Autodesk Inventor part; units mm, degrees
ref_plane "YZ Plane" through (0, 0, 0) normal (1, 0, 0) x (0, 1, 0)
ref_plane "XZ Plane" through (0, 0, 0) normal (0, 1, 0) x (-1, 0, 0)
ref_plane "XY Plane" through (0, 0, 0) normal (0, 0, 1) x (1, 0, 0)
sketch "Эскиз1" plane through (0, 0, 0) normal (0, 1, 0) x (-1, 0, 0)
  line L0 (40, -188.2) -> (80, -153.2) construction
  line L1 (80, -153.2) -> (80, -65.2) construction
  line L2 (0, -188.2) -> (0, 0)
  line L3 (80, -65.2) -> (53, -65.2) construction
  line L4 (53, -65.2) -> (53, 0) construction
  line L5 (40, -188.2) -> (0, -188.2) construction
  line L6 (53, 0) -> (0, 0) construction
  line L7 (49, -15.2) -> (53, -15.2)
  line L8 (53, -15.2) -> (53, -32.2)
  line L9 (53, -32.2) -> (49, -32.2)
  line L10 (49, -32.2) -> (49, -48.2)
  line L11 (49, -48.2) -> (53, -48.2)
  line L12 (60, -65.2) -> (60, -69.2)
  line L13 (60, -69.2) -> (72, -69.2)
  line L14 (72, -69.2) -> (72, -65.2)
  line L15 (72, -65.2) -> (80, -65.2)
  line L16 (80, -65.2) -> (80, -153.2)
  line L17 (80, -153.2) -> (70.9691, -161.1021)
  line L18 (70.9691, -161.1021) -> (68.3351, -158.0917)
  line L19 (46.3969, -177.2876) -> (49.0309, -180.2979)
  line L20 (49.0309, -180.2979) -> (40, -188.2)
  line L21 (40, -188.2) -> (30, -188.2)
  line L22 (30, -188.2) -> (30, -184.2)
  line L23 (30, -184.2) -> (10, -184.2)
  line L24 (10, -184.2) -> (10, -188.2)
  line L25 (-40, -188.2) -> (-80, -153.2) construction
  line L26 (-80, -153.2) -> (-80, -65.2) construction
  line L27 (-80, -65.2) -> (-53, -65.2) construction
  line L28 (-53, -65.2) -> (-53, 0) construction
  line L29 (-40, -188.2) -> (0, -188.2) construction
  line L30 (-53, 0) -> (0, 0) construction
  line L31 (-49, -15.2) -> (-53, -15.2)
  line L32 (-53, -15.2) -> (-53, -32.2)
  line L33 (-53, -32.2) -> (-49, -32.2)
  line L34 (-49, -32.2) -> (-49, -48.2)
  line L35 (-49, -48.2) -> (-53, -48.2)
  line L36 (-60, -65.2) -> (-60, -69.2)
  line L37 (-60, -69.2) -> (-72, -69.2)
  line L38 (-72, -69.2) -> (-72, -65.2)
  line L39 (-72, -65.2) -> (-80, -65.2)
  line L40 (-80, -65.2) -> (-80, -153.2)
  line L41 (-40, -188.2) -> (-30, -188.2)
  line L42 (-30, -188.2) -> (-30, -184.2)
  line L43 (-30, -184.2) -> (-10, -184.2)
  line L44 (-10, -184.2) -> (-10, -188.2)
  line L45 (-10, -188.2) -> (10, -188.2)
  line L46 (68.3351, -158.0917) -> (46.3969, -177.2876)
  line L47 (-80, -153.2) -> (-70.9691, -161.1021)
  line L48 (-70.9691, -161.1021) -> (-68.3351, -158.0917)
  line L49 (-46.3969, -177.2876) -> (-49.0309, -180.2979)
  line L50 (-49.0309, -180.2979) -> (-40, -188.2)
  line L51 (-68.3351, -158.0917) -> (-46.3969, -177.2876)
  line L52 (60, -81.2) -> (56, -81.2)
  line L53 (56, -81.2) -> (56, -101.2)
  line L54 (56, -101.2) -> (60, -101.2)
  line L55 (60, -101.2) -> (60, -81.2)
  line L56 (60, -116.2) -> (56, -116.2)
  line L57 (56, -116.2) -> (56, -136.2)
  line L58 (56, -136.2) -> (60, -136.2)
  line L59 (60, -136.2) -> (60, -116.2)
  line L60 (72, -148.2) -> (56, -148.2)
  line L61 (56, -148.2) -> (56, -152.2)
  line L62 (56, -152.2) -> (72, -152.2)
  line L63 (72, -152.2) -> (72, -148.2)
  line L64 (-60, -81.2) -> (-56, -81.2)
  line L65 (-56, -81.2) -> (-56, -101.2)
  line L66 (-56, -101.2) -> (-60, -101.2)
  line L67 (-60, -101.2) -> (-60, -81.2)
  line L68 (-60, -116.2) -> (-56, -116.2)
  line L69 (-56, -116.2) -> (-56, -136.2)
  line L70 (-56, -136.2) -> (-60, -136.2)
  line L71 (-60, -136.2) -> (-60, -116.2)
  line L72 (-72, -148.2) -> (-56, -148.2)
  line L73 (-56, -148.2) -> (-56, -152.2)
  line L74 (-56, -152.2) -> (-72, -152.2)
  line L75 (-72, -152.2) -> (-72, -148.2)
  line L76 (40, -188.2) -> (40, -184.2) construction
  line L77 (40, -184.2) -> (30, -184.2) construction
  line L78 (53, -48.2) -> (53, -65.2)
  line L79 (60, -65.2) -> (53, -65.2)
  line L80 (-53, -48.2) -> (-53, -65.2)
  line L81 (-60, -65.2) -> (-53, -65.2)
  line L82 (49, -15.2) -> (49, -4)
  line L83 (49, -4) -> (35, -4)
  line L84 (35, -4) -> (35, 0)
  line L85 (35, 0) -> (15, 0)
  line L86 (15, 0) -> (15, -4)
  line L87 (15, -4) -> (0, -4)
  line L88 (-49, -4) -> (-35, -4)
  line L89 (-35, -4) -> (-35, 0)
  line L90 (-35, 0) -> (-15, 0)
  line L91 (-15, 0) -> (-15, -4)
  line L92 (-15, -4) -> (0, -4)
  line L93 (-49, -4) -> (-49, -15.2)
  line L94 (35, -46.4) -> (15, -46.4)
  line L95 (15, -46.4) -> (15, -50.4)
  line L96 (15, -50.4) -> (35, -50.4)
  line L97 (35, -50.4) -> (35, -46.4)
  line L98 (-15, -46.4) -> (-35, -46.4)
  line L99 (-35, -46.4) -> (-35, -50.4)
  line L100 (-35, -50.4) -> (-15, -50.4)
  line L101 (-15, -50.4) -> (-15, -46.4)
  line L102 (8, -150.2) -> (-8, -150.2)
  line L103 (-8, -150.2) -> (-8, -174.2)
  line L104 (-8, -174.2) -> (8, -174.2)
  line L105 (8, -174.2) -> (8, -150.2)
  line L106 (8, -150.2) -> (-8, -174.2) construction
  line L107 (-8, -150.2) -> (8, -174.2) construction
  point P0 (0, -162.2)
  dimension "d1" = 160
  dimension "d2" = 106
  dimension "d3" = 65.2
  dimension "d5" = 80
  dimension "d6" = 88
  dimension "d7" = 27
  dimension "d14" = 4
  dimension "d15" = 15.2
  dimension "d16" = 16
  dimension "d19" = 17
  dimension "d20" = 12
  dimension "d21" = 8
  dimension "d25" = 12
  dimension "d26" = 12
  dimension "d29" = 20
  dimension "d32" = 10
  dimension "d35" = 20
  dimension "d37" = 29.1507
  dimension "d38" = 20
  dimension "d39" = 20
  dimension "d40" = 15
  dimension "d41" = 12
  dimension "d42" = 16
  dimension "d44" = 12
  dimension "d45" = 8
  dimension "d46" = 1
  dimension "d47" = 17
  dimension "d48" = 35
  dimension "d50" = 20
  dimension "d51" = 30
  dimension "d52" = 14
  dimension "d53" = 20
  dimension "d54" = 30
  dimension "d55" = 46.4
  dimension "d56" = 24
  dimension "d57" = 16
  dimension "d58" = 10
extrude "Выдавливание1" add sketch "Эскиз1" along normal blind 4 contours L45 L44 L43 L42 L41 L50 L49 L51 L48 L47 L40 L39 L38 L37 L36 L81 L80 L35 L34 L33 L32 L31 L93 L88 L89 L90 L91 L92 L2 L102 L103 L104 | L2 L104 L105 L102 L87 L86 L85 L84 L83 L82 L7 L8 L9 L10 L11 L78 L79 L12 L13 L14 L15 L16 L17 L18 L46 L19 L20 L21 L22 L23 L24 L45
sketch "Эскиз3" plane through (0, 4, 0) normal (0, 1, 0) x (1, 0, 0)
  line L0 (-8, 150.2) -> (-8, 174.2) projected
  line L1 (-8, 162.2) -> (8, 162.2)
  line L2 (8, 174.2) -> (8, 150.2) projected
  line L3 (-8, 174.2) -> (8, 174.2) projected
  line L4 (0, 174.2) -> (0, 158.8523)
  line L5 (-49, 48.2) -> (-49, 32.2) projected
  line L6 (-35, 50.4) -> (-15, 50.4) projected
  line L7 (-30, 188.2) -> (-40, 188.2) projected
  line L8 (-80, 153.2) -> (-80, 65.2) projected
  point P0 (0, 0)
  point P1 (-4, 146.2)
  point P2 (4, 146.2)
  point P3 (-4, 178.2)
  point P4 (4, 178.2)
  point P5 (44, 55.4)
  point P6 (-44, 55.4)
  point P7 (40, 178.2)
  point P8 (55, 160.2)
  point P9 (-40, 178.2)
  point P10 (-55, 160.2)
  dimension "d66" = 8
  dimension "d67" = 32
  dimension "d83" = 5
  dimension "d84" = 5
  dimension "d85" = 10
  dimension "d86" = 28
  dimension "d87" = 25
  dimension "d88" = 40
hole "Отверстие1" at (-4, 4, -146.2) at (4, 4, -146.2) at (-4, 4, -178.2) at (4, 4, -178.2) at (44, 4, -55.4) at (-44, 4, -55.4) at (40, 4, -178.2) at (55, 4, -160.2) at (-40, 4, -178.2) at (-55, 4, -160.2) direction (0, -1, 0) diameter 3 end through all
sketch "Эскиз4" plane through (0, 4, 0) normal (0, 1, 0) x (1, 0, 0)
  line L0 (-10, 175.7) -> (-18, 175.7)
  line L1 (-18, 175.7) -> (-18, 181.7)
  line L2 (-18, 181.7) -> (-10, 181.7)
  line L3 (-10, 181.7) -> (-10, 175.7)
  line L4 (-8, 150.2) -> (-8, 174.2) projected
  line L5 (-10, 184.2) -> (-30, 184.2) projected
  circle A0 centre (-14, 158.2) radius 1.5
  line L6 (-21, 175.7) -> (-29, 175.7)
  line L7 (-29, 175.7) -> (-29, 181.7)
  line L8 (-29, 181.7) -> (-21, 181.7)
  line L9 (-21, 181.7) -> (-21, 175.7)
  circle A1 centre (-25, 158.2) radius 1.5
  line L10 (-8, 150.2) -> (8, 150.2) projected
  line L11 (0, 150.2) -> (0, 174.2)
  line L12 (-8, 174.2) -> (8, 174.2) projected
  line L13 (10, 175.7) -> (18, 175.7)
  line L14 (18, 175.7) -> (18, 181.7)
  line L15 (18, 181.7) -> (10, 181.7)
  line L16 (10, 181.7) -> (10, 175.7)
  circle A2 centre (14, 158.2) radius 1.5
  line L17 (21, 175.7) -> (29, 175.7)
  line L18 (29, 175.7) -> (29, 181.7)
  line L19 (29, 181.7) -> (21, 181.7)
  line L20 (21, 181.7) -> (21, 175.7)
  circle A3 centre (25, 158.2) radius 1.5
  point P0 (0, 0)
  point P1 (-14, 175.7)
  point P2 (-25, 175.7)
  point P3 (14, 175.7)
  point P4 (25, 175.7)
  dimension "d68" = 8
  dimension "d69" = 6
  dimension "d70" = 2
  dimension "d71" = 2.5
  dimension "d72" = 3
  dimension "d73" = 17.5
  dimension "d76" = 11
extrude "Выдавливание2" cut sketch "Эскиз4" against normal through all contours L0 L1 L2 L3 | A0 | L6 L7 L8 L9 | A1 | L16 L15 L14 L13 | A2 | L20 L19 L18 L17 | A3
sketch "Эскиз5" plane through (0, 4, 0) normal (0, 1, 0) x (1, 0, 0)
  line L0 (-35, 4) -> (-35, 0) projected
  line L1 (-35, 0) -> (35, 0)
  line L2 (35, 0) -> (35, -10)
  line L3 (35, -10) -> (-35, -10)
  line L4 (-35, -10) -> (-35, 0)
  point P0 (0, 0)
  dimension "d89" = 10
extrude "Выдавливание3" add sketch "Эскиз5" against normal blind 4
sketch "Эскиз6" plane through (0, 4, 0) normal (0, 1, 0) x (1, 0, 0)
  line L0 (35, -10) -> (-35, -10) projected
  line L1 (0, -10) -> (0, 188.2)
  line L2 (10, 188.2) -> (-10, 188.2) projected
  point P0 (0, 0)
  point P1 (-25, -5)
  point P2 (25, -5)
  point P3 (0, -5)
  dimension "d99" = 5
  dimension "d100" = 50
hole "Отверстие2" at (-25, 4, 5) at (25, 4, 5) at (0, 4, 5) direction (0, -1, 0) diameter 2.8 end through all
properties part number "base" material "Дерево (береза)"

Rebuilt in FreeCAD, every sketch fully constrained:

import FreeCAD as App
import Part
import Sketcher

V = App.Vector

doc = App.newDocument("Part")
body = doc.addObject("PartDesign::Body", "Body")

# Sketch on XZ plane
sketch1 = body.newObject("Sketcher::SketchObject", "Sketch")
sketch1.AttachmentSupport = (doc.getObject("XZ_Plane"), [""])
sketch1.MapMode = "FlatFace"
sketch1.addGeometry([
    Part.LineSegment(V(10, -188.2, 0), V(-10, -188.2, 0)),  # 0
    Part.LineSegment(V(-10, -188.2, 0), V(-10, -184.2, 0)),  # 1
    Part.LineSegment(V(-10, -184.2, 0), V(-30, -184.2, 0)),  # 2
    Part.LineSegment(V(-30, -184.2, 0), V(-30, -188.2, 0)),  # 3
    Part.LineSegment(V(-30, -188.2, 0), V(-40, -188.2, 0)),  # 4
    Part.LineSegment(V(-40, -188.2, 0), V(-49, -180.3, 0)),  # 5
    Part.LineSegment(V(-49, -180.3, 0), V(-46.4, -177.3, 0)),  # 6
    Part.LineSegment(V(-46.4, -177.3, 0), V(-68.3, -158.1, 0)),  # 7
    Part.LineSegment(V(-68.3, -158.1, 0), V(-71, -161.1, 0)),  # 8
    Part.LineSegment(V(-71, -161.1, 0), V(-80, -153.2, 0)),  # 9
    Part.LineSegment(V(-80, -153.2, 0), V(-80, -65.2, 0)),  # 10
    Part.LineSegment(V(-80, -65.2, 0), V(-72, -65.2, 0)),  # 11
    Part.LineSegment(V(-72, -65.2, 0), V(-72, -69.2, 0)),  # 12
    Part.LineSegment(V(-72, -69.2, 0), V(-60, -69.2, 0)),  # 13
    Part.LineSegment(V(-60, -69.2, 0), V(-60, -65.2, 0)),  # 14
    Part.LineSegment(V(-60, -65.2, 0), V(-53, -65.2, 0)),  # 15
    Part.LineSegment(V(-53, -65.2, 0), V(-53, -48.2, 0)),  # 16
    Part.LineSegment(V(-53, -48.2, 0), V(-49, -48.2, 0)),  # 17
    Part.LineSegment(V(-49, -48.2, 0), V(-49, -32.2, 0)),  # 18
    Part.LineSegment(V(-49, -32.2, 0), V(-53, -32.2, 0)),  # 19
    Part.LineSegment(V(-53, -32.2, 0), V(-53, -15.2, 0)),  # 20
    Part.LineSegment(V(-53, -15.2, 0), V(-49, -15.2, 0)),  # 21
    Part.LineSegment(V(-49, -15.2, 0), V(-49, -4, 0)),  # 22
    Part.LineSegment(V(-49, -4, 0), V(-35, -4, 0)),  # 23
    Part.LineSegment(V(-35, -4, 0), V(-35, 0, 0)),  # 24
    Part.LineSegment(V(-35, 0, 0), V(-15, 0, 0)),  # 25
    Part.LineSegment(V(-15, 0, 0), V(-15, -4, 0)),  # 26
    Part.LineSegment(V(-15, -4, 0), V(15, -4, 0)),  # 27
    Part.LineSegment(V(15, -4, 0), V(15, 0, 0)),  # 28
    Part.LineSegment(V(15, 0, 0), V(35, 0, 0)),  # 29
    Part.LineSegment(V(35, 0, 0), V(35, -4, 0)),  # 30
    Part.LineSegment(V(35, -4, 0), V(49, -4, 0)),  # 31
    Part.LineSegment(V(49, -4, 0), V(49, -15.2, 0)),  # 32
    Part.LineSegment(V(49, -15.2, 0), V(53, -15.2, 0)),  # 33
    Part.LineSegment(V(53, -15.2, 0), V(53, -32.2, 0)),  # 34
    Part.LineSegment(V(53, -32.2, 0), V(49, -32.2, 0)),  # 35
    Part.LineSegment(V(49, -32.2, 0), V(49, -48.2, 0)),  # 36
    Part.LineSegment(V(49, -48.2, 0), V(53, -48.2, 0)),  # 37
    Part.LineSegment(V(53, -48.2, 0), V(53, -65.2, 0)),  # 38
    Part.LineSegment(V(53, -65.2, 0), V(60, -65.2, 0)),  # 39
    Part.LineSegment(V(60, -65.2, 0), V(60, -69.2, 0)),  # 40
    Part.LineSegment(V(60, -69.2, 0), V(72, -69.2, 0)),  # 41
    Part.LineSegment(V(72, -69.2, 0), V(72, -65.2, 0)),  # 42
    Part.LineSegment(V(72, -65.2, 0), V(80, -65.2, 0)),  # 43
    Part.LineSegment(V(80, -65.2, 0), V(80, -153.2, 0)),  # 44
    Part.LineSegment(V(80, -153.2, 0), V(71, -161.1, 0)),  # 45
    Part.LineSegment(V(71, -161.1, 0), V(68.3, -158.1, 0)),  # 46
    Part.LineSegment(V(68.3, -158.1, 0), V(46.4, -177.3, 0)),  # 47
    Part.LineSegment(V(46.4, -177.3, 0), V(49, -180.3, 0)),  # 48
    Part.LineSegment(V(49, -180.3, 0), V(40, -188.2, 0)),  # 49
    Part.LineSegment(V(40, -188.2, 0), V(30, -188.2, 0)),  # 50
    Part.LineSegment(V(30, -188.2, 0), V(30, -184.2, 0)),  # 51
    Part.LineSegment(V(30, -184.2, 0), V(10, -184.2, 0)),  # 52
    Part.LineSegment(V(10, -184.2, 0), V(10, -188.2, 0)),  # 53
    Part.LineSegment(V(8, -150.2, 0), V(-8, -150.2, 0)),  # 54
    Part.LineSegment(V(-8, -150.2, 0), V(-8, -174.2, 0)),  # 55
    Part.LineSegment(V(-8, -174.2, 0), V(8, -174.2, 0)),  # 56
    Part.LineSegment(V(8, -174.2, 0), V(8, -150.2, 0)),  # 57
    Part.LineSegment(V(72, -152.2, 0), V(72, -148.2, 0)),  # 58
    Part.LineSegment(V(72, -148.2, 0), V(56, -148.2, 0)),  # 59
    Part.LineSegment(V(56, -148.2, 0), V(56, -152.2, 0)),  # 60
    Part.LineSegment(V(56, -152.2, 0), V(72, -152.2, 0)),  # 61
    Part.LineSegment(V(60, -136.2, 0), V(60, -116.2, 0)),  # 62
    Part.LineSegment(V(60, -116.2, 0), V(56, -116.2, 0)),  # 63
    Part.LineSegment(V(56, -116.2, 0), V(56, -136.2, 0)),  # 64
    Part.LineSegment(V(56, -136.2, 0), V(60, -136.2, 0)),  # 65
    Part.LineSegment(V(60, -101.2, 0), V(60, -81.2, 0)),  # 66
    Part.LineSegment(V(60, -81.2, 0), V(56, -81.2, 0)),  # 67
    Part.LineSegment(V(56, -81.2, 0), V(56, -101.2, 0)),  # 68
    Part.LineSegment(V(56, -101.2, 0), V(60, -101.2, 0)),  # 69
    Part.LineSegment(V(35, -46.4, 0), V(15, -46.4, 0)),  # 70
    Part.LineSegment(V(15, -46.4, 0), V(15, -50.4, 0)),  # 71
    Part.LineSegment(V(15, -50.4, 0), V(35, -50.4, 0)),  # 72
    Part.LineSegment(V(35, -50.4, 0), V(35, -46.4, 0)),  # 73
    Part.LineSegment(V(-60, -101.2, 0), V(-56, -101.2, 0)),  # 74
    Part.LineSegment(V(-56, -101.2, 0), V(-56, -81.2, 0)),  # 75
    Part.LineSegment(V(-56, -81.2, 0), V(-60, -81.2, 0)),  # 76
    Part.LineSegment(V(-60, -81.2, 0), V(-60, -101.2, 0)),  # 77
    Part.LineSegment(V(-56, -148.2, 0), V(-72, -148.2, 0)),  # 78
    Part.LineSegment(V(-72, -148.2, 0), V(-72, -152.2, 0)),  # 79
    Part.LineSegment(V(-72, -152.2, 0), V(-56, -152.2, 0)),  # 80
    Part.LineSegment(V(-56, -152.2, 0), V(-56, -148.2, 0)),  # 81
    Part.LineSegment(V(-56, -116.2, 0), V(-60, -116.2, 0)),  # 82
    Part.LineSegment(V(-60, -116.2, 0), V(-60, -136.2, 0)),  # 83
    Part.LineSegment(V(-60, -136.2, 0), V(-56, -136.2, 0)),  # 84
    Part.LineSegment(V(-56, -136.2, 0), V(-56, -116.2, 0)),  # 85
    Part.LineSegment(V(-15, -46.4, 0), V(-35, -46.4, 0)),  # 86
    Part.LineSegment(V(-35, -46.4, 0), V(-35, -50.4, 0)),  # 87
    Part.LineSegment(V(-35, -50.4, 0), V(-15, -50.4, 0)),  # 88
    Part.LineSegment(V(-15, -50.4, 0), V(-15, -46.4, 0)),  # 89
], False)
sketch1.addConstraint([
    Sketcher.Constraint("Coincident", 0, 2, 1, 1),
    Sketcher.Constraint("Coincident", 1, 2, 2, 1),
    Sketcher.Constraint("Coincident", 2, 2, 3, 1),
    Sketcher.Constraint("Coincident", 3, 2, 4, 1),
    Sketcher.Constraint("Coincident", 4, 2, 5, 1),
    Sketcher.Constraint("Coincident", 5, 2, 6, 1),
    Sketcher.Constraint("Coincident", 6, 2, 7, 1),
    Sketcher.Constraint("Coincident", 7, 2, 8, 1),
    Sketcher.Constraint("Coincident", 8, 2, 9, 1),
    Sketcher.Constraint("Coincident", 9, 2, 10, 1),
    Sketcher.Constraint("Coincident", 10, 2, 11, 1),
    Sketcher.Constraint("Coincident", 11, 2, 12, 1),
    Sketcher.Constraint("Coincident", 12, 2, 13, 1),
    Sketcher.Constraint("Coincident", 13, 2, 14, 1),
    Sketcher.Constraint("Coincident", 14, 2, 15, 1),
    Sketcher.Constraint("Coincident", 15, 2, 16, 1),
    Sketcher.Constraint("Coincident", 16, 2, 17, 1),
    Sketcher.Constraint("Coincident", 17, 2, 18, 1),
    Sketcher.Constraint("Coincident", 18, 2, 19, 1),
    Sketcher.Constraint("Coincident", 19, 2, 20, 1),
    Sketcher.Constraint("Coincident", 20, 2, 21, 1),
    Sketcher.Constraint("Coincident", 21, 2, 22, 1),
    Sketcher.Constraint("Coincident", 22, 2, 23, 1),
    Sketcher.Constraint("Coincident", 23, 2, 24, 1),
    Sketcher.Constraint("Coincident", 24, 2, 25, 1),
    Sketcher.Constraint("Coincident", 25, 2, 26, 1),
    Sketcher.Constraint("Coincident", 26, 2, 27, 1),
    Sketcher.Constraint("Coincident", 27, 2, 28, 1),
    Sketcher.Constraint("Coincident", 28, 2, 29, 1),
    Sketcher.Constraint("Coincident", 29, 2, 30, 1),
    Sketcher.Constraint("Coincident", 30, 2, 31, 1),
    Sketcher.Constraint("Coincident", 31, 2, 32, 1),
    Sketcher.Constraint("Coincident", 32, 2, 33, 1),
    Sketcher.Constraint("Coincident", 33, 2, 34, 1),
    Sketcher.Constraint("Coincident", 34, 2, 35, 1),
    Sketcher.Constraint("Coincident", 35, 2, 36, 1),
    Sketcher.Constraint("Coincident", 36, 2, 37, 1),
    Sketcher.Constraint("Coincident", 37, 2, 38, 1),
    Sketcher.Constraint("Coincident", 38, 2, 39, 1),
    Sketcher.Constraint("Coincident", 39, 2, 40, 1),
    Sketcher.Constraint("Coincident", 40, 2, 41, 1),
    Sketcher.Constraint("Coincident", 41, 2, 42, 1),
    Sketcher.Constraint("Coincident", 42, 2, 43, 1),
    Sketcher.Constraint("Coincident", 43, 2, 44, 1),
    Sketcher.Constraint("Coincident", 44, 2, 45, 1),
    Sketcher.Constraint("Coincident", 45, 2, 46, 1),
    Sketcher.Constraint("Coincident", 46, 2, 47, 1),
    Sketcher.Constraint("Coincident", 47, 2, 48, 1),
    Sketcher.Constraint("Coincident", 48, 2, 49, 1),
    Sketcher.Constraint("Coincident", 49, 2, 50, 1),
    Sketcher.Constraint("Coincident", 50, 2, 51, 1),
    Sketcher.Constraint("Coincident", 51, 2, 52, 1),
    Sketcher.Constraint("Coincident", 52, 2, 53, 1),
    Sketcher.Constraint("Coincident", 53, 2, 0, 1),
    Sketcher.Constraint("Coincident", 54, 2, 55, 1),
    Sketcher.Constraint("Coincident", 55, 2, 56, 1),
    Sketcher.Constraint("Coincident", 56, 2, 57, 1),
    Sketcher.Constraint("Coincident", 57, 2, 54, 1),
    Sketcher.Constraint("Coincident", 58, 2, 59, 1),
    Sketcher.Constraint("Coincident", 59, 2, 60, 1),
    Sketcher.Constraint("Coincident", 60, 2, 61, 1),
    Sketcher.Constraint("Coincident", 61, 2, 58, 1),
    Sketcher.Constraint("Coincident", 62, 2, 63, 1),
    Sketcher.Constraint("Coincident", 63, 2, 64, 1),
    Sketcher.Constraint("Coincident", 64, 2, 65, 1),
    Sketcher.Constraint("Coincident", 65, 2, 62, 1),
    Sketcher.Constraint("Coincident", 66, 2, 67, 1),
    Sketcher.Constraint("Coincident", 67, 2, 68, 1),
    Sketcher.Constraint("Coincident", 68, 2, 69, 1),
    Sketcher.Constraint("Coincident", 69, 2, 66, 1),
    Sketcher.Constraint("Coincident", 70, 2, 71, 1),
    Sketcher.Constraint("Coincident", 71, 2, 72, 1),
    Sketcher.Constraint("Coincident", 72, 2, 73, 1),
    Sketcher.Constraint("Coincident", 73, 2, 70, 1),
    Sketcher.Constraint("Coincident", 74, 2, 75, 1),
    Sketcher.Constraint("Coincident", 75, 2, 76, 1),
    Sketcher.Constraint("Coincident", 76, 2, 77, 1),
    Sketcher.Constraint("Coincident", 77, 2, 74, 1),
    Sketcher.Constraint("Coincident", 78, 2, 79, 1),
    Sketcher.Constraint("Coincident", 79, 2, 80, 1),
    Sketcher.Constraint("Coincident", 80, 2, 81, 1),
    Sketcher.Constraint("Coincident", 81, 2, 78, 1),
    Sketcher.Constraint("Coincident", 82, 2, 83, 1),
    Sketcher.Constraint("Coincident", 83, 2, 84, 1),
    Sketcher.Constraint("Coincident", 84, 2, 85, 1),
    Sketcher.Constraint("Coincident", 85, 2, 82, 1),
    Sketcher.Constraint("Coincident", 86, 2, 87, 1),
    Sketcher.Constraint("Coincident", 87, 2, 88, 1),
    Sketcher.Constraint("Coincident", 88, 2, 89, 1),
    Sketcher.Constraint("Coincident", 89, 2, 86, 1),
    Sketcher.Constraint("Horizontal", 0),
    Sketcher.Constraint("Vertical", 1),
    Sketcher.Constraint("Horizontal", 2),
    Sketcher.Constraint("Vertical", 3),
    Sketcher.Constraint("Horizontal", 4),
    Sketcher.Constraint("Vertical", 10),
    Sketcher.Constraint("Horizontal", 11),
    Sketcher.Constraint("Vertical", 12),
    Sketcher.Constraint("Horizontal", 13),
    Sketcher.Constraint("Vertical", 14),
    Sketcher.Constraint("Horizontal", 15),
    Sketcher.Constraint("Vertical", 16),
    Sketcher.Constraint("Horizontal", 17),
    Sketcher.Constraint("Vertical", 18),
    Sketcher.Constraint("Horizontal", 19),
    Sketcher.Constraint("Vertical", 20),
    Sketcher.Constraint("Horizontal", 21),
    Sketcher.Constraint("Vertical", 22),
    Sketcher.Constraint("Horizontal", 23),
    Sketcher.Constraint("Vertical", 24),
    Sketcher.Constraint("Horizontal", 25),
    Sketcher.Constraint("Vertical", 26),
    Sketcher.Constraint("Horizontal", 27),
    Sketcher.Constraint("Vertical", 28),
    Sketcher.Constraint("Horizontal", 29),
    Sketcher.Constraint("Vertical", 30),
    Sketcher.Constraint("Horizontal", 31),
    Sketcher.Constraint("Vertical", 32),
    Sketcher.Constraint("Horizontal", 33),
    Sketcher.Constraint("Vertical", 34),
    Sketcher.Constraint("Horizontal", 35),
    Sketcher.Constraint("Vertical", 36),
    Sketcher.Constraint("Horizontal", 37),
    Sketcher.Constraint("Vertical", 38),
    Sketcher.Constraint("Horizontal", 39),
    Sketcher.Constraint("Vertical", 40),
    Sketcher.Constraint("Horizontal", 41),
    Sketcher.Constraint("Vertical", 42),
    Sketcher.Constraint("Horizontal", 43),
    Sketcher.Constraint("Vertical", 44),
    Sketcher.Constraint("Horizontal", 50),
    Sketcher.Constraint("Vertical", 51),
    Sketcher.Constraint("Horizontal", 52),
    Sketcher.Constraint("Vertical", 53),
    Sketcher.Constraint("Horizontal", 54),
    Sketcher.Constraint("Vertical", 55),
    Sketcher.Constraint("Horizontal", 56),
    Sketcher.Constraint("Vertical", 57),
    Sketcher.Constraint("Vertical", 58),
    Sketcher.Constraint("Horizontal", 59),
    Sketcher.Constraint("Vertical", 60),
    Sketcher.Constraint("Horizontal", 61),
    Sketcher.Constraint("Vertical", 62),
    Sketcher.Constraint("Horizontal", 63),
    Sketcher.Constraint("Vertical", 64),
    Sketcher.Constraint("Horizontal", 65),
    Sketcher.Constraint("Vertical", 66),
    Sketcher.Constraint("Horizontal", 67),
    Sketcher.Constraint("Vertical", 68),
    Sketcher.Constraint("Horizontal", 69),
    Sketcher.Constraint("Horizontal", 70),
    Sketcher.Constraint("Vertical", 71),
    Sketcher.Constraint("Horizontal", 72),
    Sketcher.Constraint("Vertical", 73),
    Sketcher.Constraint("Horizontal", 74),
    Sketcher.Constraint("Vertical", 75),
    Sketcher.Constraint("Horizontal", 76),
    Sketcher.Constraint("Vertical", 77),
    Sketcher.Constraint("Horizontal", 78),
    Sketcher.Constraint("Vertical", 79),
    Sketcher.Constraint("Horizontal", 80),
    Sketcher.Constraint("Vertical", 81),
    Sketcher.Constraint("Horizontal", 82),
    Sketcher.Constraint("Vertical", 83),
    Sketcher.Constraint("Horizontal", 84),
    Sketcher.Constraint("Vertical", 85),
    Sketcher.Constraint("Horizontal", 86),
    Sketcher.Constraint("Vertical", 87),
    Sketcher.Constraint("Horizontal", 88),
    Sketcher.Constraint("Vertical", 89),
    Sketcher.Constraint("Symmetric", 25, 2, 28, 2, -1, 1),
    Sketcher.Constraint("Symmetric", 24, 2, 29, 2, -2),
    Sketcher.Constraint("Symmetric", 22, 2, 31, 2, -2),
    Sketcher.Constraint("Symmetric", 20, 2, 33, 2, -2),
    Sketcher.Constraint("Symmetric", 18, 2, 35, 2, -2),
    Sketcher.Constraint("Symmetric", 16, 2, 37, 2, -2),
    Sketcher.Constraint("Symmetric", 14, 2, 39, 2, -2),
    Sketcher.Constraint("Symmetric", 12, 2, 41, 2, -2),
    Sketcher.Constraint("Symmetric", 10, 2, 43, 2, -2),
    Sketcher.Constraint("Symmetric", 8, 2, 45, 2, -2),
    Sketcher.Constraint("Symmetric", 7, 2, 46, 2, -2),
    Sketcher.Constraint("Symmetric", 6, 2, 47, 2, -2),
    Sketcher.Constraint("Symmetric", 5, 2, 48, 2, -2),
    Sketcher.Constraint("Symmetric", 4, 2, 49, 2, -2),
    Sketcher.Constraint("Symmetric", 2, 2, 51, 2, -2),
    Sketcher.Constraint("Symmetric", 68, 2, 74, 2, -2),
    Sketcher.Constraint("Symmetric", 66, 2, 76, 2, -2),
    Sketcher.Constraint("Symmetric", 58, 2, 78, 2, -2),
    Sketcher.Constraint("Symmetric", 60, 2, 80, 2, -2),
    Sketcher.Constraint("Symmetric", 62, 2, 82, 2, -2),
    Sketcher.Constraint("Symmetric", 64, 2, 84, 2, -2),
    Sketcher.Constraint("Symmetric", 73, 2, 86, 2, -2),
    Sketcher.Constraint("Symmetric", 71, 2, 88, 2, -2),
    Sketcher.Constraint("Perpendicular", 5, 6),
    Sketcher.Constraint("Perpendicular", 6, 7),
    Sketcher.Constraint("Perpendicular", 7, 8),
    Sketcher.Constraint("Perpendicular", 8, 9),
    Sketcher.Constraint("Perpendicular", 45, 46),
    Sketcher.Constraint("Horizontal", 0, 2, 3, 2),
    Sketcher.Constraint("Horizontal", 11, 2, 14, 2),
    Sketcher.Constraint("Horizontal", 23, 2, 26, 2),
    Sketcher.Constraint("Vertical", 16, 2, 19, 2),
    Sketcher.Constraint("Vertical", 18, 2, 21, 2),
    Sketcher.Constraint("Vertical", 42, 2, 58, 2),
    Sketcher.Constraint("Vertical", 40, 2, 62, 2),
    Sketcher.Constraint("Vertical", 60, 2, 63, 2),
    Sketcher.Constraint("Vertical", 65, 2, 66, 2),
    Sketcher.Constraint("Vertical", 64, 2, 67, 2),
    Sketcher.Constraint("Vertical", 28, 2, 70, 2),
    Sketcher.Constraint("Vertical", 30, 2, 72, 2),
    Sketcher.Constraint("Equal", 0, 2),
    Sketcher.Constraint("Equal", 2, 25),
    Sketcher.Constraint("Equal", 29, 52),
    Sketcher.Constraint("Equal", 56, 59),
    Sketcher.Constraint("Equal", 37, 63),
    Sketcher.Constraint("Equal", 84, 1),
    Sketcher.Constraint("Equal", 3, 12),
    Sketcher.Constraint("Equal", 80, 18),
    Sketcher.Constraint("Equal", 16, 20),
    Sketcher.Constraint("Equal", 14, 24),
    Sketcher.Constraint("Equal", 53, 58),
    Sketcher.Constraint("Equal", 88, 62),
    Sketcher.Constraint("Equal", 64, 66),
    Sketcher.Constraint("Equal", 60, 71),
    Sketcher.Constraint("Equal", 6, 8),
    Sketcher.Constraint("Equal", 5, 9),
    Sketcher.Constraint("DistanceX", 0, 2, 0, 1, 20.0),
    Sketcher.Constraint("DistanceX", 4, 2, 4, 1, 10.0),
    Sketcher.Constraint("DistanceX", 11, 1, 11, 2, 8.0),
    Sketcher.Constraint("DistanceX", 13, 1, 13, 2, 12.0),
    Sketcher.Constraint("DistanceX", 17, 1, 17, 2, 4.0),
    Sketcher.Constraint("DistanceX", 23, 1, 23, 2, 14.0),
    Sketcher.Constraint("DistanceX", 27, 1, 27, 2, 30.0),
    Sketcher.Constraint("DistanceY", 10, 1, 10, 2, 88.0),
    Sketcher.Constraint("DistanceY", 16, 1, 16, 2, 17.0),
    Sketcher.Constraint("DistanceY", 55, 2, 55, 1, 24.0),
    Sketcher.Constraint("Distance", 5, 12.0),
    Sketcher.Constraint("Distance", 6, 4.0),
    Sketcher.Constraint("DistanceX", 9, 2, -1, 1, 80.0),
    Sketcher.Constraint("DistanceX", 54, 2, -1, 1, 8.0),
    Sketcher.Constraint("DistanceY", 10, 2, -1, 1, 65.2),
    Sketcher.Constraint("DistanceY", 70, 2, -1, 1, 46.4),
    Sketcher.Constraint("Distance", 7, 29.1508),
    Sketcher.Constraint("DistanceY", 54, 2, -1, 1, 150.2),
    Sketcher.Constraint("DistanceY", 58, 2, -1, 1, 148.2),
    Sketcher.Constraint("DistanceY", 62, 2, -1, 1, 116.2),
    Sketcher.Constraint("DistanceY", 66, 2, -1, 1, 81.2),
])
pad1 = body.newObject("PartDesign::Pad", "Pad")
pad1.Profile = sketch1
pad1.Length = 4
pad1.Reversed = True

# Sketch on XZ plane
sketch2 = body.newObject("Sketcher::SketchObject", "Sketch001")
sketch2.AttachmentSupport = (doc.getObject("XZ_Plane"), [""])
sketch2.MapMode = "FlatFace"
sketch2.AttachmentOffset = App.Placement(V(0, 0, -4), App.Rotation())
sketch2.addGeometry([
    Part.Circle(V(-4, -146.2, 0), V(0, 0, 1), 1.5),  # 0
    Part.Circle(V(4, -146.2, 0), V(0, 0, 1), 1.5),  # 1
    Part.Circle(V(-4, -178.2, 0), V(0, 0, 1), 1.5),  # 2
    Part.Circle(V(4, -178.2, 0), V(0, 0, 1), 1.5),  # 3
    Part.Circle(V(44, -55.4, 0), V(0, 0, 1), 1.5),  # 4
    Part.Circle(V(-44, -55.4, 0), V(0, 0, 1), 1.5),  # 5
    Part.Circle(V(40, -178.2, 0), V(0, 0, 1), 1.5),  # 6
    Part.Circle(V(55, -160.2, 0), V(0, 0, 1), 1.5),  # 7
    Part.Circle(V(-40, -178.2, 0), V(0, 0, 1), 1.5),  # 8
    Part.Circle(V(-55, -160.2, 0), V(0, 0, 1), 1.5),  # 9
], False)
sketch2.addConstraint([
    Sketcher.Constraint("Equal", 0, 1),
    Sketcher.Constraint("Equal", 1, 2),
    Sketcher.Constraint("Equal", 2, 3),
    Sketcher.Constraint("Equal", 3, 4),
    Sketcher.Constraint("Equal", 4, 5),
    Sketcher.Constraint("Equal", 5, 6),
    Sketcher.Constraint("Equal", 6, 7),
    Sketcher.Constraint("Equal", 7, 8),
    Sketcher.Constraint("Equal", 8, 9),
    Sketcher.Constraint("Symmetric", 0, 3, 1, 3, -2),
    Sketcher.Constraint("Symmetric", 2, 3, 3, 3, -2),
    Sketcher.Constraint("Symmetric", 4, 3, 5, 3, -2),
    Sketcher.Constraint("Symmetric", 6, 3, 8, 3, -2),
    Sketcher.Constraint("Symmetric", 7, 3, 9, 3, -2),
    Sketcher.Constraint("Horizontal", 3, 3, 6, 3),
    Sketcher.Constraint("Vertical", 0, 3, 2, 3),
    Sketcher.Constraint("Diameter", 0, 3.0),
    Sketcher.Constraint("DistanceX", 0, 3, -1, 1, 4.0),
    Sketcher.Constraint("DistanceX", -1, 1, 4, 3, 44.0),
    Sketcher.Constraint("DistanceX", -1, 1, 6, 3, 40.0),
    Sketcher.Constraint("DistanceX", -1, 1, 7, 3, 55.0),
    Sketcher.Constraint("DistanceY", 2, 3, 0, 3, 32.0),
    Sketcher.Constraint("DistanceY", 6, 3, 7, 3, 18.0),
    Sketcher.Constraint("DistanceY", 0, 3, -1, 1, 146.2),
    Sketcher.Constraint("DistanceY", 4, 3, -1, 1, 55.4),
])
doc.recompute()
hole = body.newObject("PartDesign::Hole", "Hole")
hole.Profile = sketch2
hole.ThreadType = "None"
hole.Diameter = 3
hole.DepthType = "ThroughAll"
hole.Reversed = True

# Sketch on XZ plane
sketch3 = body.newObject("Sketcher::SketchObject", "Sketch002")
sketch3.AttachmentSupport = (doc.getObject("XZ_Plane"), [""])
sketch3.MapMode = "FlatFace"
sketch3.AttachmentOffset = App.Placement(V(0, 0, -4), App.Rotation())
sketch3.addGeometry([
    Part.LineSegment(V(-18, -175.7, 0), V(-10, -175.7, 0)),  # 0
    Part.LineSegment(V(-10, -175.7, 0), V(-10, -181.7, 0)),  # 1
    Part.LineSegment(V(-10, -181.7, 0), V(-18, -181.7, 0)),  # 2
    Part.LineSegment(V(-18, -181.7, 0), V(-18, -175.7, 0)),  # 3
    Part.Circle(V(-14, -158.2, 0), V(0, 0, 1), 1.5),  # 4
    Part.LineSegment(V(-29, -175.7, 0), V(-21, -175.7, 0)),  # 5
    Part.LineSegment(V(-21, -175.7, 0), V(-21, -181.7, 0)),  # 6
    Part.LineSegment(V(-21, -181.7, 0), V(-29, -181.7, 0)),  # 7
    Part.LineSegment(V(-29, -181.7, 0), V(-29, -175.7, 0)),  # 8
    Part.Circle(V(-25, -158.2, 0), V(0, 0, 1), 1.5),  # 9
    Part.LineSegment(V(10, -181.7, 0), V(10, -175.7, 0)),  # 10
    Part.LineSegment(V(10, -175.7, 0), V(18, -175.7, 0)),  # 11
    Part.LineSegment(V(18, -175.7, 0), V(18, -181.7, 0)),  # 12
    Part.LineSegment(V(18, -181.7, 0), V(10, -181.7, 0)),  # 13
    Part.Circle(V(14, -158.2, 0), V(0, 0, 1), 1.5),  # 14
    Part.LineSegment(V(21, -181.7, 0), V(21, -175.7, 0)),  # 15
    Part.LineSegment(V(21, -175.7, 0), V(29, -175.7, 0)),  # 16
    Part.LineSegment(V(29, -175.7, 0), V(29, -181.7, 0)),  # 17
    Part.LineSegment(V(29, -181.7, 0), V(21, -181.7, 0)),  # 18
    Part.Circle(V(25, -158.2, 0), V(0, 0, 1), 1.5),  # 19
], False)
sketch3.addConstraint([
    Sketcher.Constraint("Coincident", 0, 2, 1, 1),
    Sketcher.Constraint("Coincident", 1, 2, 2, 1),
    Sketcher.Constraint("Coincident", 2, 2, 3, 1),
    Sketcher.Constraint("Coincident", 3, 2, 0, 1),
    Sketcher.Constraint("Coincident", 5, 2, 6, 1),
    Sketcher.Constraint("Coincident", 6, 2, 7, 1),
    Sketcher.Constraint("Coincident", 7, 2, 8, 1),
    Sketcher.Constraint("Coincident", 8, 2, 5, 1),
    Sketcher.Constraint("Coincident", 10, 2, 11, 1),
    Sketcher.Constraint("Coincident", 11, 2, 12, 1),
    Sketcher.Constraint("Coincident", 12, 2, 13, 1),
    Sketcher.Constraint("Coincident", 13, 2, 10, 1),
    Sketcher.Constraint("Coincident", 15, 2, 16, 1),
    Sketcher.Constraint("Coincident", 16, 2, 17, 1),
    Sketcher.Constraint("Coincident", 17, 2, 18, 1),
    Sketcher.Constraint("Coincident", 18, 2, 15, 1),
    Sketcher.Constraint("Horizontal", 0),
    Sketcher.Constraint("Vertical", 1),
    Sketcher.Constraint("Horizontal", 2),
    Sketcher.Constraint("Vertical", 3),
    Sketcher.Constraint("Horizontal", 5),
    Sketcher.Constraint("Vertical", 6),
    Sketcher.Constraint("Horizontal", 7),
    Sketcher.Constraint("Vertical", 8),
    Sketcher.Constraint("Vertical", 10),
    Sketcher.Constraint("Horizontal", 11),
    Sketcher.Constraint("Vertical", 12),
    Sketcher.Constraint("Horizontal", 13),
    Sketcher.Constraint("Vertical", 15),
    Sketcher.Constraint("Horizontal", 16),
    Sketcher.Constraint("Vertical", 17),
    Sketcher.Constraint("Horizontal", 18),
    Sketcher.Constraint("Equal", 4, 9),
    Sketcher.Constraint("Equal", 9, 14),
    Sketcher.Constraint("Equal", 14, 19),
    Sketcher.Constraint("Symmetric", 4, 3, 14, 3, -2),
    Sketcher.Constraint("Symmetric", 9, 3, 19, 3, -2),
    Sketcher.Constraint("Symmetric", 0, 2, 10, 2, -2),
    Sketcher.Constraint("Symmetric", 2, 2, 12, 2, -2),
    Sketcher.Constraint("Symmetric", 5, 2, 15, 2, -2),
    Sketcher.Constraint("Symmetric", 7, 2, 17, 2, -2),
    Sketcher.Constraint("Horizontal", 4, 3, 9, 3),
    Sketcher.Constraint("Horizontal", 3, 2, 5, 2),
    Sketcher.Constraint("Horizontal", 2, 2, 6, 2),
    Sketcher.Constraint("Equal", 2, 5),
    Sketcher.Constraint("Diameter", 4, 3.0),
    Sketcher.Constraint("DistanceX", 0, 1, 0, 2, 8.0),
    Sketcher.Constraint("DistanceY", 1, 2, 1, 1, 6.0),
    Sketcher.Constraint("DistanceX", 0, 2, -1, 1, 10.0),
    Sketcher.Constraint("DistanceX", 9, 3, 4, 3, 11.0),
    Sketcher.Constraint("DistanceX", 5, 2, 3, 2, 3.0),
    Sketcher.Constraint("DistanceY", 0, 2, 4, 3, 17.5),
    Sketcher.Constraint("DistanceX", 4, 3, -1, 1, 14.0),
    Sketcher.Constraint("DistanceY", 4, 3, -1, 1, 158.2),
])
pocket1 = body.newObject("PartDesign::Pocket", "Pocket")
pocket1.Profile = sketch3
pocket1.Type = "ThroughAll"
pocket1.Reversed = True

# Sketch on XZ plane
sketch4 = body.newObject("Sketcher::SketchObject", "Sketch003")
sketch4.AttachmentSupport = (doc.getObject("XZ_Plane"), [""])
sketch4.MapMode = "FlatFace"
sketch4.AttachmentOffset = App.Placement(V(0, 0, -4), App.Rotation())
sketch4.addGeometry([
    Part.LineSegment(V(35, 0, 0), V(-35, 0, 0)),
    Part.LineSegment(V(-35, 0, 0), V(-35, 10, 0)),
    Part.LineSegment(V(-35, 10, 0), V(35, 10, 0)),
    Part.LineSegment(V(35, 10, 0), V(35, 0, 0)),
], False)
sketch4.addConstraint([
    Sketcher.Constraint("Coincident", 0, 2, 1, 1),
    Sketcher.Constraint("Coincident", 1, 2, 2, 1),
    Sketcher.Constraint("Coincident", 2, 2, 3, 1),
    Sketcher.Constraint("Coincident", 3, 2, 0, 1),
    Sketcher.Constraint("Horizontal", 0),
    Sketcher.Constraint("Vertical", 1),
    Sketcher.Constraint("Horizontal", 2),
    Sketcher.Constraint("Vertical", 3),
    Sketcher.Constraint("Symmetric", 0, 2, 3, 2, -1, 1),
    Sketcher.Constraint("DistanceY", 1, 1, 1, 2, 10.0),
    Sketcher.Constraint("DistanceX", 0, 2, 0, 1, 70.0),
])
pad2 = body.newObject("PartDesign::Pad", "Pad001")
pad2.Profile = sketch4
pad2.Length = 4

# Sketch on XZ plane
sketch5 = body.newObject("Sketcher::SketchObject", "Sketch004")
sketch5.AttachmentSupport = (doc.getObject("XZ_Plane"), [""])
sketch5.MapMode = "FlatFace"
sketch5.AttachmentOffset = App.Placement(V(0, 0, -4), App.Rotation())
sketch5.addGeometry([
    Part.Circle(V(-25, 5, 0), V(0, 0, 1), 1.4),
    Part.Circle(V(25, 5, 0), V(0, 0, 1), 1.4),
    Part.Circle(V(0, 5, 0), V(0, 0, 1), 1.4),
], False)
sketch5.addConstraint([
    Sketcher.Constraint("Equal", 0, 1),
    Sketcher.Constraint("Equal", 1, 2),
    Sketcher.Constraint("Symmetric", 0, 3, 1, 3, -2),
    Sketcher.Constraint("PointOnObject", 2, 3, -2),
    Sketcher.Constraint("Horizontal", 1, 3, 2, 3),
    Sketcher.Constraint("Diameter", 0, 2.8),
    Sketcher.Constraint("DistanceX", 0, 3, -1, 1, 25.0),
    Sketcher.Constraint("DistanceY", -1, 1, 0, 3, 5.0),
])
doc.recompute()
hole2 = body.newObject("PartDesign::Hole", "Hole001")
hole2.Profile = sketch5
hole2.ThreadType = "None"
hole2.Diameter = 2.8
hole2.DepthType = "ThroughAll"
hole2.Reversed = True

doc.recompute()
